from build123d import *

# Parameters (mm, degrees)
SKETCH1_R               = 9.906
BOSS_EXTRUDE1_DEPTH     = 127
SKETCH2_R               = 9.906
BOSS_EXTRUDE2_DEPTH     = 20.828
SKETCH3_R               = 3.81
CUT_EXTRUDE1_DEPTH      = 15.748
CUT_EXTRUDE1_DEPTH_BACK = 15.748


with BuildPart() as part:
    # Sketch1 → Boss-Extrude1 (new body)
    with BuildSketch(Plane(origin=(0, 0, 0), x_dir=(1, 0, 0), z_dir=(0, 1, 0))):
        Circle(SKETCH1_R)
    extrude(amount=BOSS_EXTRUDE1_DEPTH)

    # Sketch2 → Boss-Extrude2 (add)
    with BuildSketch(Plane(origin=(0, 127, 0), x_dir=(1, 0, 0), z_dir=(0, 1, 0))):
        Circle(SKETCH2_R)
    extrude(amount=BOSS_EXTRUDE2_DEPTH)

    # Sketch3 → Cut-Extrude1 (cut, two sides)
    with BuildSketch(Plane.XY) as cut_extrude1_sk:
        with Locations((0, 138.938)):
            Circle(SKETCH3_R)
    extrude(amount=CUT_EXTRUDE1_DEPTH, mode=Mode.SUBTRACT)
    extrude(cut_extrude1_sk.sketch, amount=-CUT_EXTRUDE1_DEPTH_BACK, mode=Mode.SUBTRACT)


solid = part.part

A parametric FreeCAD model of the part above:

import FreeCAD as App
import Part
import Sketcher
Q = App.Units.Quantity

doc = App.newDocument("Part")
body = doc.addObject("PartDesign::Body", "Body")

sketch1 = body.newObject("Sketcher::SketchObject", "Sketch")
sketch1.AttachmentSupport = (doc.getObject("XZ_Plane"), [""])
sketch1.MapMode = "FlatFace"
sketch1.addGeometry(Part.Circle(App.Vector(0, 0, 0), App.Vector(0, 0, 1), 9.906), False)
sketch1.addConstraint(Sketcher.Constraint("Coincident", 0, 3, -1, 1))
sketch1.addConstraint(Sketcher.Constraint("Diameter", 0, Q("0.78 in")))
pad1 = body.newObject("PartDesign::Pad", "Pad")
pad1.Profile = sketch1
pad1.Length = Q("5 in")
pad1.Reversed = True

sketch2 = body.newObject("Sketcher::SketchObject", "Sketch001")
sketch2.AttachmentSupport = (doc.getObject("XZ_Plane"), [""])
sketch2.MapMode = "FlatFace"
sketch2.AttachmentOffset = App.Placement(App.Vector(0, 0, -5 * 25.4), App.Rotation())
sketch2.addGeometry(Part.Circle(App.Vector(0, 0, 0), App.Vector(0, 0, 1), 9.906), False)
sketch2.addConstraint(Sketcher.Constraint("Coincident", 0, 3, -1, 1))
sketch2.addConstraint(Sketcher.Constraint("Diameter", 0, Q("0.78 in")))
pad2 = body.newObject("PartDesign::Pad", "Pad001")
pad2.Profile = sketch2
pad2.Length = Q("0.82 in")
pad2.Reversed = True

sketch3 = body.newObject("Sketcher::SketchObject", "Sketch002")
sketch3.AttachmentSupport = (doc.getObject("XY_Plane"), [""])
sketch3.MapMode = "FlatFace"
sketch3.addGeometry(Part.Circle(App.Vector(0, 138.938, 0), App.Vector(0, 0, 1), 3.81), False)
sketch3.addConstraint(Sketcher.Constraint("PointOnObject", 0, 3, -2))
sketch3.addConstraint(Sketcher.Constraint("Diameter", 0, Q("0.3 in")))
sketch3.addConstraint(Sketcher.Constraint("DistanceY", -1, 1, 0, 3, Q("5.47 in")))
pocket1 = body.newObject("PartDesign::Pocket", "Pocket")
pocket1.Profile = sketch3
pocket1.Type = "ThroughAll"
pocket1.Midplane = True

doc.recompute()
